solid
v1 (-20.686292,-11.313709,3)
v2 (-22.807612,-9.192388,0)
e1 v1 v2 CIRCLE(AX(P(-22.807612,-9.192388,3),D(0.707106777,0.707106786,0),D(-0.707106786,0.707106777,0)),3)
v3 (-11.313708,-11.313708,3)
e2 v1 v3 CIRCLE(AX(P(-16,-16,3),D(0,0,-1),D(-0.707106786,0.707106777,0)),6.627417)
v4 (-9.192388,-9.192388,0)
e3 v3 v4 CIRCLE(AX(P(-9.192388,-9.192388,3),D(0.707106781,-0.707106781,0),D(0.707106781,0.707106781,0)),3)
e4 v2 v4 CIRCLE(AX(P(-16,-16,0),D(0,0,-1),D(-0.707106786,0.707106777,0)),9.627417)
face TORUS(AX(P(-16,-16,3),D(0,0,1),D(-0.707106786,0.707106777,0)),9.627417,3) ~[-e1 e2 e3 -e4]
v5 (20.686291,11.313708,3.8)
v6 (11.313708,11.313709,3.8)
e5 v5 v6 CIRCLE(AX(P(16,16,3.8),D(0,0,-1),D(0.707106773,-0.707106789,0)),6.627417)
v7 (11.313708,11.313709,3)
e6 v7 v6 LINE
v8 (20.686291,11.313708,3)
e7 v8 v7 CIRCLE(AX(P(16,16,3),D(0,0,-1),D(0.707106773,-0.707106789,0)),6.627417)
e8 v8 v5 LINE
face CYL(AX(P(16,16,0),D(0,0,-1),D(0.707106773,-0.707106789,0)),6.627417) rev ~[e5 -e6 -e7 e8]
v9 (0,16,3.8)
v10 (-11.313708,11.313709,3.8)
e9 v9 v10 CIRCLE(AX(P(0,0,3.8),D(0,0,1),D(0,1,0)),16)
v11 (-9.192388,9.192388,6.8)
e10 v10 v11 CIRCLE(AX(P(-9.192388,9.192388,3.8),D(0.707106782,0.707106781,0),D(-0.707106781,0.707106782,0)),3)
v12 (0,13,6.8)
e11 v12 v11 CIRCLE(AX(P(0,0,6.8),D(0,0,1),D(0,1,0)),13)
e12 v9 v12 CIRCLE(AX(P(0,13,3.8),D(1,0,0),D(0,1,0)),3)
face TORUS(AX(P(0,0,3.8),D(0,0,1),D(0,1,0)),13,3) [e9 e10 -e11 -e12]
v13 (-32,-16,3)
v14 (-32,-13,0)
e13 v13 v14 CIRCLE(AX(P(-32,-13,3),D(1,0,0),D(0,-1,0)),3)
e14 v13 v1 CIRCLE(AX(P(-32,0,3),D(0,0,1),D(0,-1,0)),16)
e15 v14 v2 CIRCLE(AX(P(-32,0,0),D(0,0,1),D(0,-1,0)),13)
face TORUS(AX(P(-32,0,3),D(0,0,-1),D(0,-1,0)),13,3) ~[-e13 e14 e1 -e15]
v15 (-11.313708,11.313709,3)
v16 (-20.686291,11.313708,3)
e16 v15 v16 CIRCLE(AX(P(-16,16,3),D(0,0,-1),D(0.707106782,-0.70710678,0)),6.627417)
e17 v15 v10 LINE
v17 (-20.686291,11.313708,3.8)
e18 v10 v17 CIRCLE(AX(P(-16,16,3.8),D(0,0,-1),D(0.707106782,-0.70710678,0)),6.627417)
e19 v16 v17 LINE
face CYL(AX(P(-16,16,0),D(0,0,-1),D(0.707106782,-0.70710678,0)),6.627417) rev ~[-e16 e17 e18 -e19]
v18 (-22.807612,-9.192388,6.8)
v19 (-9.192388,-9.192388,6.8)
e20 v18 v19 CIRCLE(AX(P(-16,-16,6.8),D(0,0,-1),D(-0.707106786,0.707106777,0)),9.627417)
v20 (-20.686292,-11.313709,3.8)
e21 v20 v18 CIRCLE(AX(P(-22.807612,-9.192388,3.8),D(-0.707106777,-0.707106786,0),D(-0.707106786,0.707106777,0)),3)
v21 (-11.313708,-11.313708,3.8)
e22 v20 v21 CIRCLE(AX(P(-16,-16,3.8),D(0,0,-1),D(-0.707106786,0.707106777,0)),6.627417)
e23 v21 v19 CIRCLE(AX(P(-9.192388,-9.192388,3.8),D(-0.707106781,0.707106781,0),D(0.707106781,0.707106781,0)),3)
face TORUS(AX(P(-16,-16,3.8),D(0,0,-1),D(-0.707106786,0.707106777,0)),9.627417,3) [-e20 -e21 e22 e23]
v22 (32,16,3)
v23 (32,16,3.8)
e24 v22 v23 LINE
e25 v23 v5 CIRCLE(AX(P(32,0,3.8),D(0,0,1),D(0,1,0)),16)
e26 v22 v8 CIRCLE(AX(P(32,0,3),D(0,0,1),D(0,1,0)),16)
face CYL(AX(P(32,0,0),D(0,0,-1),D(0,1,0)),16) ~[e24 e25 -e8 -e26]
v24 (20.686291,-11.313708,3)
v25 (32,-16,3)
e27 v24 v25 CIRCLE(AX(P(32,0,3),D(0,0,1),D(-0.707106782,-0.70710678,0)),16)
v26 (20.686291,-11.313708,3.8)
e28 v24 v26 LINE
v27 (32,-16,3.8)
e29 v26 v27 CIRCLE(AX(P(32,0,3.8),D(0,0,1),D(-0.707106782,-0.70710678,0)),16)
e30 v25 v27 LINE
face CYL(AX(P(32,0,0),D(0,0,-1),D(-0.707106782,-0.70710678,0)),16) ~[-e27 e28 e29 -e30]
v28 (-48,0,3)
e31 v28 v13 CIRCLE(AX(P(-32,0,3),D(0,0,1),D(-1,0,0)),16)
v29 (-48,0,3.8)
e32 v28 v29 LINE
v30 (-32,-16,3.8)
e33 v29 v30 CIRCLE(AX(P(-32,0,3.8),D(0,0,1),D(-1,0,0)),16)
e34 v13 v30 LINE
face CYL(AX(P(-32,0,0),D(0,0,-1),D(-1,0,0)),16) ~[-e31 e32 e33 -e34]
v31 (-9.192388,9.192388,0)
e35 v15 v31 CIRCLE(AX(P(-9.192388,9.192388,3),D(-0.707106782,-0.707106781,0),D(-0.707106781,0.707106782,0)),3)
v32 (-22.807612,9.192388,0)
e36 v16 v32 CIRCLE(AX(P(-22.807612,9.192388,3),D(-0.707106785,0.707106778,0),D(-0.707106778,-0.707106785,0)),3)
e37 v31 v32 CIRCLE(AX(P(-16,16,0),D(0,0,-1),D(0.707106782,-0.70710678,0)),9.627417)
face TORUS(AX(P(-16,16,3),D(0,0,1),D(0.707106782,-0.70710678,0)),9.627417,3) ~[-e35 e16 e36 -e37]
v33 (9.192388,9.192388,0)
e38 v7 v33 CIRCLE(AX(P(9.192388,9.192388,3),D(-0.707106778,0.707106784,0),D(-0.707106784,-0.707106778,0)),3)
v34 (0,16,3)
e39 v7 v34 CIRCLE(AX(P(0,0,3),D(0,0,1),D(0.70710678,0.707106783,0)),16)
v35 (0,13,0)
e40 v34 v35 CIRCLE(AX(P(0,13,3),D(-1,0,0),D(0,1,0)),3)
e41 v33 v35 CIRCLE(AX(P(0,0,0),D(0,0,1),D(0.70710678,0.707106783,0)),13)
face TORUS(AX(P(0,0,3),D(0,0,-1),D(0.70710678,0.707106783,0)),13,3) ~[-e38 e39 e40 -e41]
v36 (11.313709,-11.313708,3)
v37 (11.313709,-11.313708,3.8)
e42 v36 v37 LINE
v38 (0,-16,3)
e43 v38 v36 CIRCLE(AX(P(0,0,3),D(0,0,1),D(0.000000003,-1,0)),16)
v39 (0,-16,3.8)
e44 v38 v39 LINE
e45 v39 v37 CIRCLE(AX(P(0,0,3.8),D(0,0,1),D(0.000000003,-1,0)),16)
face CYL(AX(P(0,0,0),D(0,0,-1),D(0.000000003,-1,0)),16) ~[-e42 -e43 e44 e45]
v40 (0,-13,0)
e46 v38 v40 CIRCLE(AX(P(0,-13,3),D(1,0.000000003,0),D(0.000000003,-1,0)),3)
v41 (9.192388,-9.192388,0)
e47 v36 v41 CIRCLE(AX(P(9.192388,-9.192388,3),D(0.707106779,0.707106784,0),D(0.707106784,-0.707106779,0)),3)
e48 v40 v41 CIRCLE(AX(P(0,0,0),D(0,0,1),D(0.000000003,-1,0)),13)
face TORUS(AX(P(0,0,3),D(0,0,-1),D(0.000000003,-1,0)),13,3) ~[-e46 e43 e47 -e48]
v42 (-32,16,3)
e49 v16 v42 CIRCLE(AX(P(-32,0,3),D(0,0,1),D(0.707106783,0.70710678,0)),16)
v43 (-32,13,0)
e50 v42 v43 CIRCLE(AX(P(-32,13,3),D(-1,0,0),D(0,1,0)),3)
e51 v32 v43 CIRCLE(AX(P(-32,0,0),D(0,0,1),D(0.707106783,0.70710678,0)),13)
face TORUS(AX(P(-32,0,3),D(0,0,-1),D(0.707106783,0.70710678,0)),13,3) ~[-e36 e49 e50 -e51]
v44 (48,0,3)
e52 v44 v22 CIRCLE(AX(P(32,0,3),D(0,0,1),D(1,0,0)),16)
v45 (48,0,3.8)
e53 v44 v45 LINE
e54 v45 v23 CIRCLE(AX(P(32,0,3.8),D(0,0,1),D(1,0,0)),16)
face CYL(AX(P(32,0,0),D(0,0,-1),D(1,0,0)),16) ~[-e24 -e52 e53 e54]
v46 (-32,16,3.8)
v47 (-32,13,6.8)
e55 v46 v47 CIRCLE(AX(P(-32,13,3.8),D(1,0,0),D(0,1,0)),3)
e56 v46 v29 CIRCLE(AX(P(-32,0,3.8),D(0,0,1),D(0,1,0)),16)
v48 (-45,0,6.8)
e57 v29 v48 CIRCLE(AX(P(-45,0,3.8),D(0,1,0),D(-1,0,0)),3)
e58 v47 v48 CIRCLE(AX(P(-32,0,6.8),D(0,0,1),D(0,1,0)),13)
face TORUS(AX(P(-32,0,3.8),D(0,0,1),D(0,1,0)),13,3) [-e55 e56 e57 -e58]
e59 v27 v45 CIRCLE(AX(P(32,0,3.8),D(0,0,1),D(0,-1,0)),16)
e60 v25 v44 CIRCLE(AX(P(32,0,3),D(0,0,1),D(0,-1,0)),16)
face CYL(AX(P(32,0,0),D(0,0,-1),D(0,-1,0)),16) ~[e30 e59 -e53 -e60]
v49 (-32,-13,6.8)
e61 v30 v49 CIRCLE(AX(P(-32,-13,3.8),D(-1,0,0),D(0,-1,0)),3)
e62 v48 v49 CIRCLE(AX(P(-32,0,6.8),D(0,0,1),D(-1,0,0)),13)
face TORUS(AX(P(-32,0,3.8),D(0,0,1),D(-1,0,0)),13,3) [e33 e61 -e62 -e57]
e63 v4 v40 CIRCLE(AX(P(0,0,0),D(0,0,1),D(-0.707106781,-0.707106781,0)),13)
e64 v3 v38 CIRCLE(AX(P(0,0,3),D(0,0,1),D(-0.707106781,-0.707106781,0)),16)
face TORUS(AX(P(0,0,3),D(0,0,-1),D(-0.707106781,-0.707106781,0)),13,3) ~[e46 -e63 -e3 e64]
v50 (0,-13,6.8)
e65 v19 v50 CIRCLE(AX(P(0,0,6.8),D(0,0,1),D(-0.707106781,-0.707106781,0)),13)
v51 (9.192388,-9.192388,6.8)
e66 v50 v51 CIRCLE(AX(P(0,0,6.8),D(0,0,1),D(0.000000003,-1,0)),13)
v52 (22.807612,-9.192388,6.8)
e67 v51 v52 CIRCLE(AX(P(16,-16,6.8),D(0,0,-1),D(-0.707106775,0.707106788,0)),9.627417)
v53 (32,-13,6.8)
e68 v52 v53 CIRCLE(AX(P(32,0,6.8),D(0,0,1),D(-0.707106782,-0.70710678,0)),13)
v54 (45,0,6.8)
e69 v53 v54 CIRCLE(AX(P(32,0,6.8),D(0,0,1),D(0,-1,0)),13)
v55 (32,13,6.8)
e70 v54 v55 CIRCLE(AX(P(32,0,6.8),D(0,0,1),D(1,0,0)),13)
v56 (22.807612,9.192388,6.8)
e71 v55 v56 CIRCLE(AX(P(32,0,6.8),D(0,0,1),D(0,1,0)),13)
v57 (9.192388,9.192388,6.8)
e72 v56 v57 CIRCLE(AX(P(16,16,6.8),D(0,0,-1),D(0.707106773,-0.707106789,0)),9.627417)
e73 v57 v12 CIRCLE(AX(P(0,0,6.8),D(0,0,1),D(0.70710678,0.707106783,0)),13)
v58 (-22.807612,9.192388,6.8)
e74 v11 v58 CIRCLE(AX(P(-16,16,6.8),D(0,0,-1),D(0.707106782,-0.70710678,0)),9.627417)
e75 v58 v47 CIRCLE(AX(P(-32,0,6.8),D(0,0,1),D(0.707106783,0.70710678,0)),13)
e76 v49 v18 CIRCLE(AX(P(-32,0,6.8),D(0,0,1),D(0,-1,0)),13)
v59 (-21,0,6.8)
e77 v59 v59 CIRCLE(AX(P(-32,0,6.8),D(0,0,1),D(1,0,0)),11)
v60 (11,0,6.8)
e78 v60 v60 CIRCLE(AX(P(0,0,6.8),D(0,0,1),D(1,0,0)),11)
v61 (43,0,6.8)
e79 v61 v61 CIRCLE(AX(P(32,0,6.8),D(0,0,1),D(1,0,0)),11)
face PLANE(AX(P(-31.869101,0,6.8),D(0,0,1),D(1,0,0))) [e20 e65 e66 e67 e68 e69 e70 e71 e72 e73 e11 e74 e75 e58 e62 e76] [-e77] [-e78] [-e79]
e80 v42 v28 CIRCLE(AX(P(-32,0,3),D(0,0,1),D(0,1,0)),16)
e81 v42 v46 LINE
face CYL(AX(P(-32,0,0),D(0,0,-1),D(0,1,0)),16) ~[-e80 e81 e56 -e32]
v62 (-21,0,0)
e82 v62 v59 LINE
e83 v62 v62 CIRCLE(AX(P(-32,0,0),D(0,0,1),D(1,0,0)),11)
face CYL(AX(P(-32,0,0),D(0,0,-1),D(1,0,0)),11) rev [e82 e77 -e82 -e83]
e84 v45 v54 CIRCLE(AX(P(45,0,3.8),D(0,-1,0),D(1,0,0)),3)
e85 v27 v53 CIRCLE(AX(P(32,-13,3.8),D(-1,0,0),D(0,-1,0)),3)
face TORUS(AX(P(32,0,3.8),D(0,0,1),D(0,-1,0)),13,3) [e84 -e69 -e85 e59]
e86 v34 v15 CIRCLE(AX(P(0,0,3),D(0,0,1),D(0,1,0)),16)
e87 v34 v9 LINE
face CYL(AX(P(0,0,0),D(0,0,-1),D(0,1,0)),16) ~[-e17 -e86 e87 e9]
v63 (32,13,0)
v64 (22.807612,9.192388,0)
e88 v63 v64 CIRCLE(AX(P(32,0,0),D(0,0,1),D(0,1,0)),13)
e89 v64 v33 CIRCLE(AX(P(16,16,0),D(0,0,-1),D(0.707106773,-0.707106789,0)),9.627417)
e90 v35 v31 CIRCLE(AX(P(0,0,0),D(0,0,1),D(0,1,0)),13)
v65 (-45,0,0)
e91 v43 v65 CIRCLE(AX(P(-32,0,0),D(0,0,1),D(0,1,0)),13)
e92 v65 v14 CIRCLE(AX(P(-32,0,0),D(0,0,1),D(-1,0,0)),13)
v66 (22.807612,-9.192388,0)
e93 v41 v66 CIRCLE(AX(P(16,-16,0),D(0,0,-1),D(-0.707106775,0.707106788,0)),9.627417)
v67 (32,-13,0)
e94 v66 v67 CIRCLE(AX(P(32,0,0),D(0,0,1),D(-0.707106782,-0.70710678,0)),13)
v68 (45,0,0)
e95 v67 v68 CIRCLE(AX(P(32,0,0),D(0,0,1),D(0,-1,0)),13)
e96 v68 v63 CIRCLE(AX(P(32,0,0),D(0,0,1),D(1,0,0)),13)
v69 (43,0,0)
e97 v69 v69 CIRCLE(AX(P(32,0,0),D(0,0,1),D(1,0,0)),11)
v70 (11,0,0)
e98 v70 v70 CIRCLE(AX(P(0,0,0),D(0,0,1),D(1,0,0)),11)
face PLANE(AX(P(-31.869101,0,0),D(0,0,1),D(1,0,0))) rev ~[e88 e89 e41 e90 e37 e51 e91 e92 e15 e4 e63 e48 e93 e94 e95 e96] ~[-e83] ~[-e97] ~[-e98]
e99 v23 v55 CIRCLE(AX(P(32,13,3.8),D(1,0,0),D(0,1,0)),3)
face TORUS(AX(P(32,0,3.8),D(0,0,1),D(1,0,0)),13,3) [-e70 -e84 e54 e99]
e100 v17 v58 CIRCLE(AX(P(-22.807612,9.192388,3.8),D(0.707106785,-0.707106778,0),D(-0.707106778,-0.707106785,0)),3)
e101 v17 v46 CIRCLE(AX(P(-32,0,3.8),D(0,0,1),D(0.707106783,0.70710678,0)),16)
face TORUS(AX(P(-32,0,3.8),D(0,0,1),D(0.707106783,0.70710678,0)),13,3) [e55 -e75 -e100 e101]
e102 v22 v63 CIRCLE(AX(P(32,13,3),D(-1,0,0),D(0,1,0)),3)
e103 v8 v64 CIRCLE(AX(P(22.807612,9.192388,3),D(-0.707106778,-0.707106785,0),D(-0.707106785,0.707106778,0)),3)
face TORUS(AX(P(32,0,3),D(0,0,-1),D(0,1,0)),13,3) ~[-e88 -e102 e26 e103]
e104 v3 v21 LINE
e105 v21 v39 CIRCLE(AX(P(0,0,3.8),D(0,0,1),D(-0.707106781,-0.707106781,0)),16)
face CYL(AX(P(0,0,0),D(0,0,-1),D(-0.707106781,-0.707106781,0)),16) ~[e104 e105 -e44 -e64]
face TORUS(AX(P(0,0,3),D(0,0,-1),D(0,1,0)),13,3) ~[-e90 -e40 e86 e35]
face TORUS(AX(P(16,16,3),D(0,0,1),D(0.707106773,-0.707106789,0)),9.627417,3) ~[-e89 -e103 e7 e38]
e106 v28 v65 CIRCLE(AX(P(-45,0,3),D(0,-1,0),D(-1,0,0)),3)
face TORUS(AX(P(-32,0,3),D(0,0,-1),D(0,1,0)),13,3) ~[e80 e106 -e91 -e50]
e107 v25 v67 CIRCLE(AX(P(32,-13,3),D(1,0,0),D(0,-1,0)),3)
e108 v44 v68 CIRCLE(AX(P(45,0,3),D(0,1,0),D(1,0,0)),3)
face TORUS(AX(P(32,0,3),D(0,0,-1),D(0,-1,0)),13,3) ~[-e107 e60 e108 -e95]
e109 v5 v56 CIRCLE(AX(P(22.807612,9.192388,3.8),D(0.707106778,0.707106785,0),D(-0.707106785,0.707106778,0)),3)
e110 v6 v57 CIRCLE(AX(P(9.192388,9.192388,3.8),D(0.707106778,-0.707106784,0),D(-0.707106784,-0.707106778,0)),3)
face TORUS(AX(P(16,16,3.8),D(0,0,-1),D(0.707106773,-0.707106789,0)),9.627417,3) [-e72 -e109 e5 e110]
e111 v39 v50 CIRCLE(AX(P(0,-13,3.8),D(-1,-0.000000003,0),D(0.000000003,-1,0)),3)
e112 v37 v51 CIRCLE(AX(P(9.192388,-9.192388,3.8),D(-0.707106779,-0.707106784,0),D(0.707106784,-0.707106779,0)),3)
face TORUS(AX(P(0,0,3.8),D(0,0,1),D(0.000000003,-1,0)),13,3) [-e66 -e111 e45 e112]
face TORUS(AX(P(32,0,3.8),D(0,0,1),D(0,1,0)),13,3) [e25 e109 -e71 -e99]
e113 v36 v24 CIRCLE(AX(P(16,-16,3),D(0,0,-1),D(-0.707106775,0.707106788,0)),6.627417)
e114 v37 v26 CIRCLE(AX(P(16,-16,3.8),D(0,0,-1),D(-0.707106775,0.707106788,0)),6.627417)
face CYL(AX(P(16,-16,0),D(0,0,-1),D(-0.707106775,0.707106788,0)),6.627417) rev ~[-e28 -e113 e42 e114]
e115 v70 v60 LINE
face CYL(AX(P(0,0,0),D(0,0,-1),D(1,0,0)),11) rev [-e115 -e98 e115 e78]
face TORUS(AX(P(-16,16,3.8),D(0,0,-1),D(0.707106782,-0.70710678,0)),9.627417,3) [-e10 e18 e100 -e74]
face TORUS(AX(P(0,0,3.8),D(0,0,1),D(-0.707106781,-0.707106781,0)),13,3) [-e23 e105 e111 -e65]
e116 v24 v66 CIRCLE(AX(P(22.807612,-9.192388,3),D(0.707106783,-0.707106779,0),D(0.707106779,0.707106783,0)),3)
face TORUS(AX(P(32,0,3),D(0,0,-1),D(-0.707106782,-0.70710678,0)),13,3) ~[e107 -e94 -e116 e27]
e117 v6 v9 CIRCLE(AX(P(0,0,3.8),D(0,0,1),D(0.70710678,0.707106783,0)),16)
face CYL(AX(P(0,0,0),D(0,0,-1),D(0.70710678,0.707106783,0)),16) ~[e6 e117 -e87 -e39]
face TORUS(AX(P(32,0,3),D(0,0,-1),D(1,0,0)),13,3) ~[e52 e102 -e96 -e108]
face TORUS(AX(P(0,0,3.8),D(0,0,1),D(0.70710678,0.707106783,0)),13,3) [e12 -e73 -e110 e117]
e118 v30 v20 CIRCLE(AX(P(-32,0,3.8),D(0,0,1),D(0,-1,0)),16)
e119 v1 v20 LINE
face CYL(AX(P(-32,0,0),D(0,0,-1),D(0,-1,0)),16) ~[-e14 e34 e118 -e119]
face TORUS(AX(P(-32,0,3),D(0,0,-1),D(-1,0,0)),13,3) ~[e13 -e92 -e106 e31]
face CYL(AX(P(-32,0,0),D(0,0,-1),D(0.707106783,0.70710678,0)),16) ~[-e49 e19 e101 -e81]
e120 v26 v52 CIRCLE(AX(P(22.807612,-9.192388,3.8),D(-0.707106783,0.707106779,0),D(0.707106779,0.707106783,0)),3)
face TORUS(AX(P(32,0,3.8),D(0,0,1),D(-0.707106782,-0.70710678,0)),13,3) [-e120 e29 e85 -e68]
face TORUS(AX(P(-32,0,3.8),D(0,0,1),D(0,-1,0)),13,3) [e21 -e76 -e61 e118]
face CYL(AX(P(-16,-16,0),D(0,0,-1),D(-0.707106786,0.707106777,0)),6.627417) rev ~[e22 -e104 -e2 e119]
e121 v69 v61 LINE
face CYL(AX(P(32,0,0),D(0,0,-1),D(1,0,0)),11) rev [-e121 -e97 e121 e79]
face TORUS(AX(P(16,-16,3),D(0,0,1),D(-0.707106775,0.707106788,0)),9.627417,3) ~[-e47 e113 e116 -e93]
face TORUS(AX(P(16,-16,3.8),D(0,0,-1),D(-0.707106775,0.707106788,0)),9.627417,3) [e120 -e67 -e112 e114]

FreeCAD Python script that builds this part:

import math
import FreeCAD as App
import Part
import Sketcher

V = App.Vector


def edges_at(feature, points):
    """Names of the edges that pass closest to the given points."""
    edges = feature.Shape.Edges
    near = lambda p: min(range(len(edges)), key=lambda i: edges[i].distToShape(Part.Vertex(*p))[0])
    return sorted({f"Edge{near(p) + 1}" for p in points})

doc = App.newDocument("Part")
body = doc.addObject("PartDesign::Body", "Body")

# Sketch on XY plane
sketch1 = doc.addObject("Sketcher::SketchObject", "Sketch")
body.addObject(sketch1)
sketch1.AttachmentSupport = (doc.XY_Plane, [""])
sketch1.MapMode = "FlatFace"
sketch1.addGeometry(Part.ArcOfCircle(Part.Circle(V(0, 0, 0), V(0, 0, 1), 16), math.radians(-135), math.radians(-90)), False)
sketch1.addGeometry(Part.ArcOfCircle(Part.Circle(V(0, 0, 0), V(0, 0, 1), 16), math.radians(-90), math.radians(-45)), False)
sketch1.addGeometry(Part.ArcOfCircle(Part.Circle(V(16, -16, 0), V(0, 0, 1), 6.627417), math.radians(45), math.radians(134.999999)), False)
sketch1.addGeometry(Part.ArcOfCircle(Part.Circle(V(32, 0, 0), V(0, 0, 1), 16), math.radians(-135), math.radians(-90)), False)
sketch1.addGeometry(Part.ArcOfCircle(Part.Circle(V(32, 0, 0), V(0, 0, 1), 16), math.radians(-90), math.radians(0)), False)
sketch1.addGeometry(Part.ArcOfCircle(Part.Circle(V(32, 0, 0), V(0, 0, 1), 16), math.radians(0), math.radians(90)), False)
sketch1.addGeometry(Part.ArcOfCircle(Part.Circle(V(32, 0, 0), V(0, 0, 1), 16), math.radians(90), math.radians(135)), False)
sketch1.addGeometry(Part.ArcOfCircle(Part.Circle(V(16, 16, 0), V(0, 0, 1), 6.627417), math.radians(-135), math.radians(-45.000001)), False)
sketch1.addGeometry(Part.ArcOfCircle(Part.Circle(V(0, 0, 0), V(0, 0, 1), 16), math.radians(45), math.radians(90)), False)
sketch1.addGeometry(Part.ArcOfCircle(Part.Circle(V(0, 0, 0), V(0, 0, 1), 16), math.radians(90), math.radians(135)), False)
sketch1.addGeometry(Part.ArcOfCircle(Part.Circle(V(-16, 16, 0), V(0, 0, 1), 6.627417), math.radians(-135), math.radians(-45)), False)
sketch1.addGeometry(Part.ArcOfCircle(Part.Circle(V(-32, 0, 0), V(0, 0, 1), 16), math.radians(45), math.radians(90)), False)
sketch1.addGeometry(Part.ArcOfCircle(Part.Circle(V(-32, 0, 0), V(0, 0, 1), 16), math.radians(90), math.radians(180)), False)
sketch1.addGeometry(Part.ArcOfCircle(Part.Circle(V(-32, 0, 0), V(0, 0, 1), 16), math.radians(180), math.radians(270)), False)
sketch1.addGeometry(Part.ArcOfCircle(Part.Circle(V(-32, 0, 0), V(0, 0, 1), 16), math.radians(-90), math.radians(-45)), False)
sketch1.addGeometry(Part.ArcOfCircle(Part.Circle(V(-16, -16, 0), V(0, 0, 1), 6.627417), math.radians(45), math.radians(135)), False)
sketch1.addGeometry(Part.Circle(V(-32, 0, 0), V(0, 0, 1), 11), False)
sketch1.addGeometry(Part.Circle(V(32, 0, 0), V(0, 0, 1), 11), False)
sketch1.addGeometry(Part.Circle(V(0, 0, 0), V(0, 0, 1), 11), False)
sketch1.addConstraint(Sketcher.Constraint("Tangent", 0, 2, 1, 1))
sketch1.addConstraint(Sketcher.Constraint("Tangent", 1, 2, 2, 2))
sketch1.addConstraint(Sketcher.Constraint("Tangent", 2, 1, 3, 1))
sketch1.addConstraint(Sketcher.Constraint("Tangent", 3, 2, 4, 1))
sketch1.addConstraint(Sketcher.Constraint("Tangent", 4, 2, 5, 1))
sketch1.addConstraint(Sketcher.Constraint("Tangent", 5, 2, 6, 1))
sketch1.addConstraint(Sketcher.Constraint("Tangent", 6, 2, 7, 2))
sketch1.addConstraint(Sketcher.Constraint("Tangent", 7, 1, 8, 1))
sketch1.addConstraint(Sketcher.Constraint("Tangent", 8, 2, 9, 1))
sketch1.addConstraint(Sketcher.Constraint("Tangent", 9, 2, 10, 2))
sketch1.addConstraint(Sketcher.Constraint("Tangent", 10, 1, 11, 1))
sketch1.addConstraint(Sketcher.Constraint("Tangent", 11, 2, 12, 1))
sketch1.addConstraint(Sketcher.Constraint("Tangent", 12, 2, 13, 1))
sketch1.addConstraint(Sketcher.Constraint("Tangent", 13, 2, 14, 1))
sketch1.addConstraint(Sketcher.Constraint("Tangent", 14, 2, 15, 2))
sketch1.addConstraint(Sketcher.Constraint("Tangent", 15, 1, 0, 1))
sketch1.addConstraint(Sketcher.Constraint("Coincident", 0, 3, -1, 1))
sketch1.addConstraint(Sketcher.Constraint("Coincident", 8, 3, -1, 1))
sketch1.addConstraint(Sketcher.Constraint("Coincident", 18, 3, -1, 1))
sketch1.addConstraint(Sketcher.Constraint("Coincident", 5, 3, 3, 3))
sketch1.addConstraint(Sketcher.Constraint("Coincident", 13, 3, 11, 3))
sketch1.addConstraint(Sketcher.Constraint("Coincident", 16, 3, 11, 3))
sketch1.addConstraint(Sketcher.Constraint("Coincident", 17, 3, 3, 3))
sketch1.addConstraint(Sketcher.Constraint("Equal", 0, 1))
sketch1.addConstraint(Sketcher.Constraint("Equal", 1, 3))
sketch1.addConstraint(Sketcher.Constraint("Equal", 5, 6))
sketch1.addConstraint(Sketcher.Constraint("Equal", 2, 7))
sketch1.addConstraint(Sketcher.Constraint("Equal", 6, 8))
sketch1.addConstraint(Sketcher.Constraint("Equal", 8, 9))
sketch1.addConstraint(Sketcher.Constraint("Equal", 7, 10))
sketch1.addConstraint(Sketcher.Constraint("Equal", 9, 11))
sketch1.addConstraint(Sketcher.Constraint("Equal", 13, 14))
sketch1.addConstraint(Sketcher.Constraint("Equal", 10, 15))
sketch1.addConstraint(Sketcher.Constraint("Equal", 16, 17))
sketch1.addConstraint(Sketcher.Constraint("Equal", 17, 18))
sketch1.addConstraint(Sketcher.Constraint("Symmetric", 3, 3, 11, 3, -1, 1))
sketch1.addConstraint(Sketcher.Constraint("Symmetric", 5, 2, 11, 2, -2))
sketch1.addConstraint(Sketcher.Constraint("PointOnObject", 0, 2, -2))
sketch1.addConstraint(Sketcher.Constraint("PointOnObject", 4, 2, -1))
sketch1.addConstraint(Sketcher.Constraint("PointOnObject", 8, 2, -2))
sketch1.addConstraint(Sketcher.Constraint("PointOnObject", 12, 2, -1))
sketch1.addConstraint(Sketcher.Constraint("Horizontal", 15, 3, 0, 2))
sketch1.addConstraint(Sketcher.Constraint("Vertical", 17, 3, 3, 2))
sketch1.addConstraint(Sketcher.Constraint("Vertical", 3, 2, 5, 2))
sketch1.addConstraint(Sketcher.Constraint("Vertical", 11, 2, 13, 2))
sketch1.addConstraint(Sketcher.Constraint("Diameter", 16, 22.0))
sketch1.addConstraint(Sketcher.Constraint("Radius", 0, 16.0))
sketch1.addConstraint(Sketcher.Constraint("DistanceX", -1, 1, 2, 3, 16.0))
pad1 = doc.addObject("PartDesign::Pad", "Pad")
body.addObject(pad1)
pad1.Profile = sketch1
pad1.Length = 6.8
doc.recompute()

fillet = doc.addObject("PartDesign::Fillet", "Fillet")
body.addObject(fillet)
fillet.Base = (pad1, edges_at(pad1, [
    (-48, 0, 3.4),
    (-16, -9.373, 6.8),
    (-6.123, -14.782, 6.8),
    (16, -9.373, 6.8),
    (48, 0, 3.4),
    (-16, 9.373, 6.8),
    (0, 16, 3.4),
    (16, 9.373, 6.8),
    (-48, 0, 3.4),
    (-16, -9.373, 0),
    (-6.123, -14.782, 0),
    (16, -9.373, 0),
    (48, 0, 3.4),
    (-16, 9.373, 0),
    (0, 16, 3.4),
    (16, 9.373, 0),
]))
fillet.Radius = 3

doc.recompute()
